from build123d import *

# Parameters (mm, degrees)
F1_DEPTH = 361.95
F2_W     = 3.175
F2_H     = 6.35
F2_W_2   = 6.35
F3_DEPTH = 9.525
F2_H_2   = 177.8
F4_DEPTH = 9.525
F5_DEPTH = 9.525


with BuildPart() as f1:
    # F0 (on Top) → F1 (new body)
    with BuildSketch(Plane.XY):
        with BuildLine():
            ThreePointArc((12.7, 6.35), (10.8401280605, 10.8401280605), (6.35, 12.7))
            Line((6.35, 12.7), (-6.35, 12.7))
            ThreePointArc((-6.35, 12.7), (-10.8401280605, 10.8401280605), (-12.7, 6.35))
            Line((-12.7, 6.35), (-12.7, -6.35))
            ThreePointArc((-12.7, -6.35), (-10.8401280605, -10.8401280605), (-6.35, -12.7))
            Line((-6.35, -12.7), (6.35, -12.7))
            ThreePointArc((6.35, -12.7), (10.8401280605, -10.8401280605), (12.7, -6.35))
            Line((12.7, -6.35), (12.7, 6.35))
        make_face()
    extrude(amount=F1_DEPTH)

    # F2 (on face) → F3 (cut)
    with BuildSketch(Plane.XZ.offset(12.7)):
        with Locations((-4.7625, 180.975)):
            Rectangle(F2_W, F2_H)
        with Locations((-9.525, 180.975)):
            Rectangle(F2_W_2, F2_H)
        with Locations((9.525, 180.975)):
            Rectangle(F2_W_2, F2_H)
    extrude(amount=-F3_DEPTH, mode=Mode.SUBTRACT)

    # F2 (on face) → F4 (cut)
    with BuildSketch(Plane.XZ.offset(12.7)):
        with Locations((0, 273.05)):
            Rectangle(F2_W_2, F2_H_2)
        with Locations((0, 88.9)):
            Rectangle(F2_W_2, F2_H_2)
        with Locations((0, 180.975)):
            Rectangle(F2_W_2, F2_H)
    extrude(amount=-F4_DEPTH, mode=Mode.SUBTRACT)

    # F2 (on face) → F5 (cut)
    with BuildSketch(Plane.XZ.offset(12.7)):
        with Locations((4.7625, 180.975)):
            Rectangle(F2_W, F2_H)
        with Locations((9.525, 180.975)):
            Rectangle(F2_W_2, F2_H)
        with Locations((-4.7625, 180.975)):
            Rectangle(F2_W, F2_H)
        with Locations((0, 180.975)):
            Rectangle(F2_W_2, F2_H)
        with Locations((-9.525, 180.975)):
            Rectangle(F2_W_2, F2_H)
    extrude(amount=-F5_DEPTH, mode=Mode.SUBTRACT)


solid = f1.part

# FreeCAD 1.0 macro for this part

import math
import FreeCAD as App
import Part
import Sketcher

V = App.Vector
Q = App.Units.Quantity

doc = App.newDocument("Part")
params = doc.addObject("Spreadsheet::Sheet", "Params")
for row, (alias, value) in enumerate([
    ("sketch1_radius", "0.25 in"),
    ("sketch1_width", "0.5 in"),
    ("pad1_length", "14.25 in"),
    ("sketch2_width", "0.25 in"),
    ("sketch2_width2", "0.375 in"),
    ("pocket1_length", "0.375 in"),
    ("sketch3_width", "0.25 in"),
    ("sketch3_height", "14.25 in"),
    ("pocket2_length", "0.375 in"),
    ("sketch4_width", "1 in"),
    ("sketch4_height", "0.25 in"),
    ("pocket3_length", "0.375 in"),
], start=1):
    params.set(f"A{row}", alias)
    params.set(f"B{row}", "=" + value)
    params.setAlias(f"B{row}", alias)

body = doc.addObject("PartDesign::Body", "Body")

sketch1 = doc.addObject("Sketcher::SketchObject", "Sketch")
body.addObject(sketch1)
sketch1.AttachmentSupport = (doc.XY_Plane, [""])
sketch1.MapMode = "FlatFace"
sketch1.addGeometry([
    Part.ArcOfCircle(Part.Circle(V(6, 6, 0), V(0, 0, 1), 6), math.radians(0), math.radians(90)),
    Part.LineSegment(V(6, 13, 0), V(-6, 13, 0)),
    Part.ArcOfCircle(Part.Circle(V(-6, 6, 0), V(0, 0, 1), 6), math.radians(90), math.radians(180)),
    Part.LineSegment(V(-13, 6, 0), V(-13, -6, 0)),
    Part.ArcOfCircle(Part.Circle(V(-6, -6, 0), V(0, 0, 1), 6), math.radians(180), math.radians(270)),
    Part.LineSegment(V(-6, -13, 0), V(6, -13, 0)),
    Part.ArcOfCircle(Part.Circle(V(6, -6, 0), V(0, 0, 1), 6), math.radians(-90), math.radians(0)),
    Part.LineSegment(V(13, -6, 0), V(13, 6, 0)),
], False)
sketch1.addConstraint([
    Sketcher.Constraint("Tangent", 0, 2, 1, 1),
    Sketcher.Constraint("Tangent", 1, 2, 2, 1),
    Sketcher.Constraint("Tangent", 2, 2, 3, 1),
    Sketcher.Constraint("Tangent", 3, 2, 4, 1),
    Sketcher.Constraint("Tangent", 4, 2, 5, 1),
    Sketcher.Constraint("Tangent", 5, 2, 6, 1),
    Sketcher.Constraint("Tangent", 6, 2, 7, 1),
    Sketcher.Constraint("Tangent", 7, 2, 0, 1),
    Sketcher.Constraint("Horizontal", 1),
    Sketcher.Constraint("Vertical", 3),
    Sketcher.Constraint("Horizontal", 5),
    Sketcher.Constraint("Vertical", 7),
    Sketcher.Constraint("Equal", 0, 2),
    Sketcher.Constraint("Equal", 2, 4),
    Sketcher.Constraint("Equal", 4, 6),
    Sketcher.Constraint("Symmetric", 0, 3, 4, 3, -1, 1),
    Sketcher.Constraint("Equal", 5, 3),
    Sketcher.Constraint("Radius", 0, Q("0.25 in")),
    Sketcher.Constraint("DistanceX", 1, 2, 1, 1, Q("0.5 in")),
])
sketch1.setExpression("Constraints[17]", "Params.sketch1_radius")
sketch1.setExpression("Constraints[18]", "Params.sketch1_width")
pad1 = doc.addObject("PartDesign::Pad", "Pad")
body.addObject(pad1)
pad1.Profile = sketch1
pad1.setExpression("Length", "Params.pad1_length")

sketch2 = doc.addObject("Sketcher::SketchObject", "Sketch001")
body.addObject(sketch2)
sketch2.AttachmentSupport = (doc.XZ_Plane, [""])
sketch2.MapMode = "FlatFace"
sketch2.AttachmentOffset = App.Placement(V(0, 0, 0.5 * 25.4), App.Rotation())
sketch2.addGeometry([
    Part.LineSegment(V(-3, 178, 0), V(-3, 184, 0)),
    Part.LineSegment(V(-3, 184, 0), V(-13, 184, 0)),
    Part.LineSegment(V(-13, 184, 0), V(-13, 178, 0)),
    Part.LineSegment(V(-13, 178, 0), V(-3, 178, 0)),
    Part.LineSegment(V(6, 184, 0), V(6, 178, 0)),
    Part.LineSegment(V(6, 178, 0), V(13, 178, 0)),
    Part.LineSegment(V(13, 178, 0), V(13, 184, 0)),
    Part.LineSegment(V(13, 184, 0), V(6, 184, 0)),
], False)
sketch2.addConstraint([
    Sketcher.Constraint("Coincident", 0, 2, 1, 1),
    Sketcher.Constraint("Coincident", 1, 2, 2, 1),
    Sketcher.Constraint("Coincident", 2, 2, 3, 1),
    Sketcher.Constraint("Coincident", 3, 2, 0, 1),
    Sketcher.Constraint("Coincident", 4, 2, 5, 1),
    Sketcher.Constraint("Coincident", 5, 2, 6, 1),
    Sketcher.Constraint("Coincident", 6, 2, 7, 1),
    Sketcher.Constraint("Coincident", 7, 2, 4, 1),
    Sketcher.Constraint("Vertical", 0),
    Sketcher.Constraint("Horizontal", 1),
    Sketcher.Constraint("Vertical", 2),
    Sketcher.Constraint("Horizontal", 3),
    Sketcher.Constraint("Vertical", 4),
    Sketcher.Constraint("Horizontal", 5),
    Sketcher.Constraint("Vertical", 6),
    Sketcher.Constraint("Horizontal", 7),
    Sketcher.Constraint("Symmetric", 2, 2, 5, 2, -2),
    Sketcher.Constraint("Horizontal", 1, 2, 6, 2),
    Sketcher.Constraint("Equal", 7, 0),
    Sketcher.Constraint("DistanceY", -1, 1, 2, 2, Q("7 in")),
    Sketcher.Constraint("DistanceX", 2, 2, 5, 2, Q("1 in")),
    Sketcher.Constraint("DistanceX", 5, 1, 5, 2, Q("0.25 in")),
    Sketcher.Constraint("DistanceX", 1, 2, 1, 1, Q("0.375 in")),
])
sketch2.setExpression("Constraints[21]", "Params.sketch2_width")
sketch2.setExpression("Constraints[22]", "Params.sketch2_width2")
pocket1 = doc.addObject("PartDesign::Pocket", "Pocket")
body.addObject(pocket1)
pocket1.Profile = sketch2
pocket1.setExpression("Length", "Params.pocket1_length")

sketch3 = doc.addObject("Sketcher::SketchObject", "Sketch002")
body.addObject(sketch3)
sketch3.AttachmentSupport = (doc.XZ_Plane, [""])
sketch3.MapMode = "FlatFace"
sketch3.AttachmentOffset = App.Placement(V(0, 0, 0.5 * 25.4), App.Rotation())
sketch3.addGeometry([
    Part.LineSegment(V(-3, 362, 0), V(-3, 0, 0)),
    Part.LineSegment(V(-3, 0, 0), V(3, 0, 0)),
    Part.LineSegment(V(3, 0, 0), V(3, 362, 0)),
    Part.LineSegment(V(3, 362, 0), V(-3, 362, 0)),
], False)
sketch3.addConstraint([
    Sketcher.Constraint("Coincident", 0, 2, 1, 1),
    Sketcher.Constraint("Coincident", 1, 2, 2, 1),
    Sketcher.Constraint("Coincident", 2, 2, 3, 1),
    Sketcher.Constraint("Coincident", 3, 2, 0, 1),
    Sketcher.Constraint("Vertical", 0),
    Sketcher.Constraint("Horizontal", 1),
    Sketcher.Constraint("Vertical", 2),
    Sketcher.Constraint("Horizontal", 3),
    Sketcher.Constraint("Symmetric", 0, 2, 1, 2, -1, 1),
    Sketcher.Constraint("DistanceX", 1, 1, 1, 2, Q("0.25 in")),
    Sketcher.Constraint("DistanceY", 0, 2, 0, 1, Q("14.25 in")),
])
sketch3.setExpression("Constraints[9]", "Params.sketch3_width")
sketch3.setExpression("Constraints[10]", "Params.sketch3_height")
pocket2 = doc.addObject("PartDesign::Pocket", "Pocket001")
body.addObject(pocket2)
pocket2.Profile = sketch3
pocket2.setExpression("Length", "Params.pocket2_length")

sketch4 = doc.addObject("Sketcher::SketchObject", "Sketch003")
body.addObject(sketch4)
sketch4.AttachmentSupport = (doc.XZ_Plane, [""])
sketch4.MapMode = "FlatFace"
sketch4.AttachmentOffset = App.Placement(V(0, 0, 0.5 * 25.4), App.Rotation())
sketch4.addGeometry([
    Part.LineSegment(V(13, 178, 0), V(13, 184, 0)),
    Part.LineSegment(V(13, 184, 0), V(-13, 184, 0)),
    Part.LineSegment(V(-13, 184, 0), V(-13, 178, 0)),
    Part.LineSegment(V(-13, 178, 0), V(13, 178, 0)),
], False)
sketch4.addConstraint([
    Sketcher.Constraint("Coincident", 0, 2, 1, 1),
    Sketcher.Constraint("Coincident", 1, 2, 2, 1),
    Sketcher.Constraint("Coincident", 2, 2, 3, 1),
    Sketcher.Constraint("Coincident", 3, 2, 0, 1),
    Sketcher.Constraint("Vertical", 0),
    Sketcher.Constraint("Horizontal", 1),
    Sketcher.Constraint("Vertical", 2),
    Sketcher.Constraint("Horizontal", 3),
    Sketcher.Constraint("DistanceX", 1, 2, 1, 1, Q("1 in")),
    Sketcher.Constraint("DistanceY", -1, 1, 2, 2, Q("7 in")),
    Sketcher.Constraint("DistanceY", 0, 1, 0, 2, Q("0.25 in")),
    Sketcher.Constraint("DistanceX", -1, 1, 0, 2, Q("0.5 in")),
])
sketch4.setExpression("Constraints[8]", "Params.sketch4_width")
sketch4.setExpression("Constraints[10]", "Params.sketch4_height")
pocket3 = doc.addObject("PartDesign::Pocket", "Pocket002")
body.addObject(pocket3)
pocket3.Profile = sketch4
pocket3.setExpression("Length", "Params.pocket3_length")

doc.recompute()
